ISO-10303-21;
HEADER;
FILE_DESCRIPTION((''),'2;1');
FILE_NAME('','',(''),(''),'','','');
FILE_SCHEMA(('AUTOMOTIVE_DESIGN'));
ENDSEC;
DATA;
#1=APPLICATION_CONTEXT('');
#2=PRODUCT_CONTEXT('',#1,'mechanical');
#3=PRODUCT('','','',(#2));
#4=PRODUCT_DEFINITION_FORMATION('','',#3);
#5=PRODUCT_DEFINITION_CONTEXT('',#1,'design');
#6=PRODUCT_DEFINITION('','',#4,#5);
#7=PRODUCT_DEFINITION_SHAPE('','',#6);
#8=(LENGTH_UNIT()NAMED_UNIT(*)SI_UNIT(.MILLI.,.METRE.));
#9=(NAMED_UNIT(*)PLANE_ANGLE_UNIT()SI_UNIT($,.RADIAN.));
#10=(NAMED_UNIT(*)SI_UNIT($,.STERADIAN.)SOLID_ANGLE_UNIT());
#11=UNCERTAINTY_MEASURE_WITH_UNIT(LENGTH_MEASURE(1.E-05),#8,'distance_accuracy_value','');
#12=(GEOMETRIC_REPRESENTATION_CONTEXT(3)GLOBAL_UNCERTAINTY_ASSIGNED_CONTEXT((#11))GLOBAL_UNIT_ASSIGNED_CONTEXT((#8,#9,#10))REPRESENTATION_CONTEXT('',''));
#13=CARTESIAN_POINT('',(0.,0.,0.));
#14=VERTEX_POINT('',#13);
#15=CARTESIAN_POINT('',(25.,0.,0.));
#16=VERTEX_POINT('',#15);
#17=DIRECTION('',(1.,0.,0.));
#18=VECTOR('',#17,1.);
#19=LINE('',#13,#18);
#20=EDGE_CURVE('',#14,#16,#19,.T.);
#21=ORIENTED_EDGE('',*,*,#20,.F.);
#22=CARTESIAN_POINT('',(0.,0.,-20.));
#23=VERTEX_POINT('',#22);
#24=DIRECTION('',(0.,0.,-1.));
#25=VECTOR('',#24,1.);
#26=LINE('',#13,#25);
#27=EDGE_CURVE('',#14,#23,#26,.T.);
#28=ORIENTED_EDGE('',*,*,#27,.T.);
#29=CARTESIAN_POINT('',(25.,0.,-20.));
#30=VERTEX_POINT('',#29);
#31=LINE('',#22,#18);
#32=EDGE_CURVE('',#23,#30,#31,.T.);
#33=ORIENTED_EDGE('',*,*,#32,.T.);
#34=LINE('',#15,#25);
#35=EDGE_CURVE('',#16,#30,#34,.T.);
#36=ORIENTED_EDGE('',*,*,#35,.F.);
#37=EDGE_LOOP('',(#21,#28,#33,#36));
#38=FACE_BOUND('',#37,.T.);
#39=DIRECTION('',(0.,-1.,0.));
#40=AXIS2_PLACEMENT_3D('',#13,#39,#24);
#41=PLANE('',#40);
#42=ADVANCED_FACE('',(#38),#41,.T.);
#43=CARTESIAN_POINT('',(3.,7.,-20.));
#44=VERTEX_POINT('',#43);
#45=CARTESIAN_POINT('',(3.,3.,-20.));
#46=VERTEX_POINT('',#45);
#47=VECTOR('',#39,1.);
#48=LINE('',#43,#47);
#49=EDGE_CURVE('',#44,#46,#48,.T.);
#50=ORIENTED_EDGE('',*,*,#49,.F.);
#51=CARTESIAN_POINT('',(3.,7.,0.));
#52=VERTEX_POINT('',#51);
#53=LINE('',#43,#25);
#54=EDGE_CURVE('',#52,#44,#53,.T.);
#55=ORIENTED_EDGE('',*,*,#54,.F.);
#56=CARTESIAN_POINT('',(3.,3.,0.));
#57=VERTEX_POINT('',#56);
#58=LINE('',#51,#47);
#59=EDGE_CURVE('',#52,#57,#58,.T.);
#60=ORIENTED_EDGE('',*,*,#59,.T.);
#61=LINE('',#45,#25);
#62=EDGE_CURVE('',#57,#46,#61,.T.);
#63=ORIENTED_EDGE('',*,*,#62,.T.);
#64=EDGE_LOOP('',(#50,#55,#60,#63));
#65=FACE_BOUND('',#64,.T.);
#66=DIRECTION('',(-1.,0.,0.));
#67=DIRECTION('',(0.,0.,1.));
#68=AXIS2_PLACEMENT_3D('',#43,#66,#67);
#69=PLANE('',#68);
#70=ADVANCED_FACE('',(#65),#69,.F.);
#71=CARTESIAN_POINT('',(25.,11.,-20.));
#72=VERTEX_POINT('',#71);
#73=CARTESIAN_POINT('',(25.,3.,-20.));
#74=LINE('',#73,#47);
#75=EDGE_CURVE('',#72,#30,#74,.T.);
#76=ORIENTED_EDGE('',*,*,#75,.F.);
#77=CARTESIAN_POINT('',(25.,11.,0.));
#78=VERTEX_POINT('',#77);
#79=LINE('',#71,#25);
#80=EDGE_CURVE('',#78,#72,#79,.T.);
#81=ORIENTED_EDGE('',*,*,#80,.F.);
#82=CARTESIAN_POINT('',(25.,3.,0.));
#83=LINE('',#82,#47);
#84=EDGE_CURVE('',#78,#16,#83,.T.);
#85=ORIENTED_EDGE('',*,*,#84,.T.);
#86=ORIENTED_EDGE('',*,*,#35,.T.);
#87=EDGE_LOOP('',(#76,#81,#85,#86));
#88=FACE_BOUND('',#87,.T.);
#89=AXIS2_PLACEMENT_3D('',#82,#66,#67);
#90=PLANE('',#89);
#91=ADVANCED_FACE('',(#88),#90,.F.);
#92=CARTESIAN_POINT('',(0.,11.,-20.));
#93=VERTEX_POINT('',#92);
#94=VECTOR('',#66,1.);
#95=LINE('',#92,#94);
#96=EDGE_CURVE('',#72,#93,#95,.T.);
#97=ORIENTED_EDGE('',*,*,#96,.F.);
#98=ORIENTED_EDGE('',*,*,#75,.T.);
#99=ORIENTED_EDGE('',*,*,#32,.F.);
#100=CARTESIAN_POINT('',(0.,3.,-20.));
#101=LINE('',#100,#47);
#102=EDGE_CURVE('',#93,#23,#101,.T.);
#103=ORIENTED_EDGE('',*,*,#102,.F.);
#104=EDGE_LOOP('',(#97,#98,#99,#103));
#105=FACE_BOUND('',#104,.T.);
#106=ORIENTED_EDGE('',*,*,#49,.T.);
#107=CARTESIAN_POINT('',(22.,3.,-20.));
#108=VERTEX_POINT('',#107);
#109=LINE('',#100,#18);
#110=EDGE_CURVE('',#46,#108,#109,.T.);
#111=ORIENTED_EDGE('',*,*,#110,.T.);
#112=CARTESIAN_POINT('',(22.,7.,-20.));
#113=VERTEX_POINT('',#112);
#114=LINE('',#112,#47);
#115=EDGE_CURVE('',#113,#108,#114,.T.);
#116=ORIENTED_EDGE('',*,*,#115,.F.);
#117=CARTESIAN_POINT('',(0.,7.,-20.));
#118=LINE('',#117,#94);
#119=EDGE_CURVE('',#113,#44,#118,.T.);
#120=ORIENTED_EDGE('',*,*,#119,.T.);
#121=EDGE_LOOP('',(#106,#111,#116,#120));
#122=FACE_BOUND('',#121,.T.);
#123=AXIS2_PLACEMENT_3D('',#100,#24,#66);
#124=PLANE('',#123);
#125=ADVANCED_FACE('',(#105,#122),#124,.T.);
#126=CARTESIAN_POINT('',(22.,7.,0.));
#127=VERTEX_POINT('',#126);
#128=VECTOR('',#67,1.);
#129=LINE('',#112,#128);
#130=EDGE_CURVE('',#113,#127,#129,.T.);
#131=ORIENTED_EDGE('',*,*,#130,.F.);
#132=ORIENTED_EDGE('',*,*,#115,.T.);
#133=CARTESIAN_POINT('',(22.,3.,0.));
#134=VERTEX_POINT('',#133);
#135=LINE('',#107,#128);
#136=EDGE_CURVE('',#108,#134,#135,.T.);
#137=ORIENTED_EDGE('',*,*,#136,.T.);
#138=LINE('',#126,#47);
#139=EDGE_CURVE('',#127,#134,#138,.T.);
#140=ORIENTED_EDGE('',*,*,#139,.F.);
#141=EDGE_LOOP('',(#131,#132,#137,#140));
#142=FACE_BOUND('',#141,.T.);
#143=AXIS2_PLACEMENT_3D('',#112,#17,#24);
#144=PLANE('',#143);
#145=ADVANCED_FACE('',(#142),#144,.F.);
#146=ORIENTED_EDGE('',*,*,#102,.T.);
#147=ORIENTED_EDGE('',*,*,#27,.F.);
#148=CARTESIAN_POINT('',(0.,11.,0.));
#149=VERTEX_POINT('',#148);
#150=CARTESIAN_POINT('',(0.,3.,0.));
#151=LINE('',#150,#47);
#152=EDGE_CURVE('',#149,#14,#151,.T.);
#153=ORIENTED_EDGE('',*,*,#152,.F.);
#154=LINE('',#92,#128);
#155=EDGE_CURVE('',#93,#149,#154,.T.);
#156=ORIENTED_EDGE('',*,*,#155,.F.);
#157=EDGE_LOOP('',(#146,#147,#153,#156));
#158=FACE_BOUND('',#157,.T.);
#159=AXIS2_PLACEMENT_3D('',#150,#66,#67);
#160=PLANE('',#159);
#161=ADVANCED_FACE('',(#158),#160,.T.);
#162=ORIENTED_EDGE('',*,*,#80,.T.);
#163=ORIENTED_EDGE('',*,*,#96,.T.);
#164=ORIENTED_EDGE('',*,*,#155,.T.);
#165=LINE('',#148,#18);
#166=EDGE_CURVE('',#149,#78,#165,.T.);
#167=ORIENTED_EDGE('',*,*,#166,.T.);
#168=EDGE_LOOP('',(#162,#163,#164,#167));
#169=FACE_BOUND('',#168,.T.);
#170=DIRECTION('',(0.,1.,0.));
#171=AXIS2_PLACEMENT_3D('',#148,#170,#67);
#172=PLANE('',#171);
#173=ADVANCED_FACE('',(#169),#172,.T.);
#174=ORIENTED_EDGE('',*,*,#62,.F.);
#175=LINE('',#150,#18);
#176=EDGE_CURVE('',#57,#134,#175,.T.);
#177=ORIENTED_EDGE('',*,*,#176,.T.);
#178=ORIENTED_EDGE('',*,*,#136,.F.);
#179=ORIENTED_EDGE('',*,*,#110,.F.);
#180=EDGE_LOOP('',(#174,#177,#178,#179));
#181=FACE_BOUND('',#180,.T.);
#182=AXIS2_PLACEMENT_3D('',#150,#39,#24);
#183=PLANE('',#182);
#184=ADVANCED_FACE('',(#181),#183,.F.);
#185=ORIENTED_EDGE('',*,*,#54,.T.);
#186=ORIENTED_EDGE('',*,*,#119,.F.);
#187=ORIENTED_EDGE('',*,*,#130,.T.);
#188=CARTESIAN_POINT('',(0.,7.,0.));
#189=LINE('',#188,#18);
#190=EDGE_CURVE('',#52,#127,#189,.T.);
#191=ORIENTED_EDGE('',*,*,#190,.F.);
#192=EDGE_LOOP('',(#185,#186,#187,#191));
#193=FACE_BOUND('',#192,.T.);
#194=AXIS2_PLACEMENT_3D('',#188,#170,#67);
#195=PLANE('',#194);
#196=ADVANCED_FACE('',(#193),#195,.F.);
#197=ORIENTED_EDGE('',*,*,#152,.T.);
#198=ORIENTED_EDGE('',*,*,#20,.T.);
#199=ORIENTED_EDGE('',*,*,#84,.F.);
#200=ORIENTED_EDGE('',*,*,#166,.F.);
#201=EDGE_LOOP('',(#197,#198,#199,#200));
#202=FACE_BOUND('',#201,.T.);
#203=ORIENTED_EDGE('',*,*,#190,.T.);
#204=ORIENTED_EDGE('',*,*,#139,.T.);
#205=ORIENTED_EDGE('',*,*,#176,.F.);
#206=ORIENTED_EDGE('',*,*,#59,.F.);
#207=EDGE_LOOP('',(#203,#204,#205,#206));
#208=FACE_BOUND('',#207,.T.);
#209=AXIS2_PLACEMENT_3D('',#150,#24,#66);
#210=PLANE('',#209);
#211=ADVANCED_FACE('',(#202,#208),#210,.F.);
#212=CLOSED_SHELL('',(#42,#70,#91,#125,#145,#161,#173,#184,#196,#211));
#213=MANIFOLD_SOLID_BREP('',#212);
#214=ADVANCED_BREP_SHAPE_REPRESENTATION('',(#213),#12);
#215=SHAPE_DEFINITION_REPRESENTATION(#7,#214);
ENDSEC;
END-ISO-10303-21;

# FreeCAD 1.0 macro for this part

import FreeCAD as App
import Part
import Sketcher
from FreeCAD import Vector
Q = App.Units.Quantity

doc = App.newDocument("Part")
body = doc.addObject("PartDesign::Body", "Body")

sketch1 = body.newObject("Sketcher::SketchObject", "Sketch")
sketch1.AttachmentSupport = (doc.getObject("XZ_Plane"), [""])
sketch1.MapMode = "FlatFace"
sketch1.addGeometry(Part.LineSegment(Vector(0, -20, 0), Vector(0, 0, 0)), False)
sketch1.addGeometry(Part.LineSegment(Vector(0, 0, 0), Vector(25, 0, 0)), False)
sketch1.addGeometry(Part.LineSegment(Vector(25, 0, 0), Vector(25, -20, 0)), False)
sketch1.addGeometry(Part.LineSegment(Vector(25, -20, 0), Vector(0, -20, 0)), False)
sketch1.addConstraint(Sketcher.Constraint("Coincident", 0, 2, 1, 1))
sketch1.addConstraint(Sketcher.Constraint("Coincident", 1, 2, 2, 1))
sketch1.addConstraint(Sketcher.Constraint("Coincident", 2, 2, 3, 1))
sketch1.addConstraint(Sketcher.Constraint("Coincident", 3, 2, 0, 1))
sketch1.addConstraint(Sketcher.Constraint("Vertical", 0))
sketch1.addConstraint(Sketcher.Constraint("Horizontal", 1))
sketch1.addConstraint(Sketcher.Constraint("Vertical", 2))
sketch1.addConstraint(Sketcher.Constraint("Horizontal", 3))
sketch1.addConstraint(Sketcher.Constraint("Coincident", 0, 2, -1, 1))
sketch1.addConstraint(Sketcher.Constraint("DistanceX", 1, 1, 1, 2, Q("25 mm")))
sketch1.addConstraint(Sketcher.Constraint("DistanceY", 0, 1, 0, 2, Q("20 mm")))
pad1 = body.newObject("PartDesign::Pad", "Pad")
pad1.Profile = sketch1
pad1.Length = 3
pad1.Reversed = True

sketch2 = body.newObject("Sketcher::SketchObject", "Sketch001")
sketch2.AttachmentSupport = (doc.getObject("XZ_Plane"), [""])
sketch2.MapMode = "FlatFace"
sketch2.AttachmentOffset = App.Placement(Vector(0, 0, -3), App.Rotation())
sketch2.addGeometry(Part.LineSegment(Vector(0, -20, 0), Vector(0, 0, 0)), False)
sketch2.addGeometry(Part.LineSegment(Vector(0, 0, 0), Vector(3, 0, 0)), False)
sketch2.addGeometry(Part.LineSegment(Vector(3, 0, 0), Vector(3, -20, 0)), False)
sketch2.addGeometry(Part.LineSegment(Vector(3, -20, 0), Vector(0, -20, 0)), False)
sketch2.addGeometry(Part.LineSegment(Vector(22, -20, 0), Vector(22, 0, 0)), False)
sketch2.addGeometry(Part.LineSegment(Vector(22, 0, 0), Vector(25, 0, 0)), False)
sketch2.addGeometry(Part.LineSegment(Vector(25, 0, 0), Vector(25, -20, 0)), False)
sketch2.addGeometry(Part.LineSegment(Vector(25, -20, 0), Vector(22, -20, 0)), False)
sketch2.addConstraint(Sketcher.Constraint("Coincident", 0, 2, 1, 1))
sketch2.addConstraint(Sketcher.Constraint("Coincident", 1, 2, 2, 1))
sketch2.addConstraint(Sketcher.Constraint("Coincident", 2, 2, 3, 1))
sketch2.addConstraint(Sketcher.Constraint("Coincident", 3, 2, 0, 1))
sketch2.addConstraint(Sketcher.Constraint("Coincident", 4, 2, 5, 1))
sketch2.addConstraint(Sketcher.Constraint("Coincident", 5, 2, 6, 1))
sketch2.addConstraint(Sketcher.Constraint("Coincident", 6, 2, 7, 1))
sketch2.addConstraint(Sketcher.Constraint("Coincident", 7, 2, 4, 1))
sketch2.addConstraint(Sketcher.Constraint("Vertical", 0))
sketch2.addConstraint(Sketcher.Constraint("Horizontal", 1))
sketch2.addConstraint(Sketcher.Constraint("Vertical", 2))
sketch2.addConstraint(Sketcher.Constraint("Horizontal", 3))
sketch2.addConstraint(Sketcher.Constraint("Vertical", 4))
sketch2.addConstraint(Sketcher.Constraint("Horizontal", 5))
sketch2.addConstraint(Sketcher.Constraint("Vertical", 6))
sketch2.addConstraint(Sketcher.Constraint("Horizontal", 7))
sketch2.addConstraint(Sketcher.Constraint("Coincident", 0, 2, -1, 1))
sketch2.addConstraint(Sketcher.Constraint("PointOnObject", 4, 2, -1))
sketch2.addConstraint(Sketcher.Constraint("Horizontal", 3, 2, 6, 2))
sketch2.addConstraint(Sketcher.Constraint("Equal", 3, 5))
sketch2.addConstraint(Sketcher.Constraint("DistanceX", 1, 1, 1, 2, Q("3 mm")))
sketch2.addConstraint(Sketcher.Constraint("DistanceY", 0, 1, 0, 2, Q("20 mm")))
sketch2.addConstraint(Sketcher.Constraint("DistanceX", -1, 1, 4, 2, Q("22 mm")))
pad2 = body.newObject("PartDesign::Pad", "Pad001")
pad2.Profile = sketch2
pad2.Length = 4
pad2.Reversed = True

sketch3 = body.newObject("Sketcher::SketchObject", "Sketch002")
sketch3.AttachmentSupport = (doc.getObject("XZ_Plane"), [""])
sketch3.MapMode = "FlatFace"
sketch3.AttachmentOffset = App.Placement(Vector(0, 0, -7), App.Rotation())
sketch3.addGeometry(Part.LineSegment(Vector(0, -20, 0), Vector(0, 0, 0)), False)
sketch3.addGeometry(Part.LineSegment(Vector(0, 0, 0), Vector(25, 0, 0)), False)
sketch3.addGeometry(Part.LineSegment(Vector(25, 0, 0), Vector(25, -20, 0)), False)
sketch3.addGeometry(Part.LineSegment(Vector(25, -20, 0), Vector(0, -20, 0)), False)
sketch3.addConstraint(Sketcher.Constraint("Coincident", 0, 2, 1, 1))
sketch3.addConstraint(Sketcher.Constraint("Coincident", 1, 2, 2, 1))
sketch3.addConstraint(Sketcher.Constraint("Coincident", 2, 2, 3, 1))
sketch3.addConstraint(Sketcher.Constraint("Coincident", 3, 2, 0, 1))
sketch3.addConstraint(Sketcher.Constraint("Vertical", 0))
sketch3.addConstraint(Sketcher.Constraint("Horizontal", 1))
sketch3.addConstraint(Sketcher.Constraint("Vertical", 2))
sketch3.addConstraint(Sketcher.Constraint("Horizontal", 3))
sketch3.addConstraint(Sketcher.Constraint("Coincident", 0, 2, -1, 1))
sketch3.addConstraint(Sketcher.Constraint("DistanceX", 1, 1, 1, 2, Q("25 mm")))
sketch3.addConstraint(Sketcher.Constraint("DistanceY", 0, 1, 0, 2, Q("20 mm")))
pad3 = body.newObject("PartDesign::Pad", "Pad002")
pad3.Profile = sketch3
pad3.Length = 4
pad3.Reversed = True

doc.recompute()
